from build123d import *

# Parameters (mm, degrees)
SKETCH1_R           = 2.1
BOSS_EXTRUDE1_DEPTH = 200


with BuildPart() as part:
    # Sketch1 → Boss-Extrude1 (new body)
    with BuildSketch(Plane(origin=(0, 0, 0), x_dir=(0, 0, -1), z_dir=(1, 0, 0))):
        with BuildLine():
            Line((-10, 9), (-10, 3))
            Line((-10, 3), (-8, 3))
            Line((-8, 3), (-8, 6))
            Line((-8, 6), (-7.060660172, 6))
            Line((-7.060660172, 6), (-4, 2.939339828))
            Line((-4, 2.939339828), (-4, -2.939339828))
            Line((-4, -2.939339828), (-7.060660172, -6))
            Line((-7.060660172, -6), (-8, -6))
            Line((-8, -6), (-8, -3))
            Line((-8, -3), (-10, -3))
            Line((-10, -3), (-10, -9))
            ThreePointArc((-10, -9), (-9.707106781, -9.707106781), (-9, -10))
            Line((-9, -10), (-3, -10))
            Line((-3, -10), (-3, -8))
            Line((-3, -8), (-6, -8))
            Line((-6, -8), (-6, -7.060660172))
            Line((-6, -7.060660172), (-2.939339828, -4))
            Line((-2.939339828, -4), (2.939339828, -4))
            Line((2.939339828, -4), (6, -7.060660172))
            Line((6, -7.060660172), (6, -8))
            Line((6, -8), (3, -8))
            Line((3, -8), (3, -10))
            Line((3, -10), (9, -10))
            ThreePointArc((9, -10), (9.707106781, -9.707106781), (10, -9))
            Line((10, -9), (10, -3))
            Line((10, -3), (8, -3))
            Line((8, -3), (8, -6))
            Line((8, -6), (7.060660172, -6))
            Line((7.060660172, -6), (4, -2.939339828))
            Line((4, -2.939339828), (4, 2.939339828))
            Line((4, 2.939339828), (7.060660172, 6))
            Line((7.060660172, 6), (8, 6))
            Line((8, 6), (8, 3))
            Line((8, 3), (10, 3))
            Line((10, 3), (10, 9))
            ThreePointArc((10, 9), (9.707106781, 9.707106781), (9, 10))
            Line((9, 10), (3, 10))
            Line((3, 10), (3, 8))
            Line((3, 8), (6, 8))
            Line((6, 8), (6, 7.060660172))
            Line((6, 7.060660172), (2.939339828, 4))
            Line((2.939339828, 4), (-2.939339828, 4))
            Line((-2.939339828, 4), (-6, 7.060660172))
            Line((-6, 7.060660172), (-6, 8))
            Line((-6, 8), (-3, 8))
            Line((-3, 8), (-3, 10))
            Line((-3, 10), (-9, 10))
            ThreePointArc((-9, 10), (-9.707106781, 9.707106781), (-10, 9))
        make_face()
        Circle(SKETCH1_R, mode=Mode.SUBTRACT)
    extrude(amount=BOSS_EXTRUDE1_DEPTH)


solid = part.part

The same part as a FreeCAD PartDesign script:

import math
import FreeCAD as App
import Part
import Sketcher
from FreeCAD import Vector
Q = App.Units.Quantity

doc = App.newDocument("Part")
body = doc.addObject("PartDesign::Body", "Body")

sketch1 = body.newObject("Sketcher::SketchObject", "Sketch")
sketch1.AttachmentSupport = (doc.getObject("YZ_Plane"), [""])
sketch1.MapMode = "FlatFace"
sketch1.addGeometry([
    Part.LineSegment(Vector(9, 10, 0), Vector(3, 10, 0)),
    Part.LineSegment(Vector(3, 10, 0), Vector(3, 8, 0)),
    Part.LineSegment(Vector(3, 8, 0), Vector(6, 8, 0)),
    Part.LineSegment(Vector(6, 8, 0), Vector(6, 7.1, 0)),
    Part.LineSegment(Vector(6, 7.1, 0), Vector(2.9, 4, 0)),
    Part.LineSegment(Vector(2.9, 4, 0), Vector(-2.9, 4, 0)),
    Part.LineSegment(Vector(-2.9, 4, 0), Vector(-6, 7.1, 0)),
    Part.LineSegment(Vector(-6, 7.1, 0), Vector(-6, 8, 0)),
    Part.LineSegment(Vector(-6, 8, 0), Vector(-3, 8, 0)),
    Part.LineSegment(Vector(-3, 8, 0), Vector(-3, 10, 0)),
    Part.LineSegment(Vector(-3, 10, 0), Vector(-9, 10, 0)),
    Part.ArcOfCircle(Part.Circle(Vector(-9, 9, 0), Vector(0, 0, 1), 1), math.radians(90), math.radians(180)),
    Part.LineSegment(Vector(-10, 9, 0), Vector(-10, 3, 0)),
    Part.LineSegment(Vector(-10, 3, 0), Vector(-8, 3, 0)),
    Part.LineSegment(Vector(-8, 3, 0), Vector(-8, 6, 0)),
    Part.LineSegment(Vector(-8, 6, 0), Vector(-7.1, 6, 0)),
    Part.LineSegment(Vector(-7.1, 6, 0), Vector(-4, 2.9, 0)),
    Part.LineSegment(Vector(-4, 2.9, 0), Vector(-4, -2.9, 0)),
    Part.LineSegment(Vector(-4, -2.9, 0), Vector(-7.1, -6, 0)),
    Part.LineSegment(Vector(-7.1, -6, 0), Vector(-8, -6, 0)),
    Part.LineSegment(Vector(-8, -6, 0), Vector(-8, -3, 0)),
    Part.LineSegment(Vector(-8, -3, 0), Vector(-10, -3, 0)),
    Part.LineSegment(Vector(-10, -3, 0), Vector(-10, -9, 0)),
    Part.ArcOfCircle(Part.Circle(Vector(-9, -9, 0), Vector(0, 0, 1), 1), math.radians(-180), math.radians(-90)),
    Part.LineSegment(Vector(-9, -10, 0), Vector(-3, -10, 0)),
    Part.LineSegment(Vector(-3, -10, 0), Vector(-3, -8, 0)),
    Part.LineSegment(Vector(-3, -8, 0), Vector(-6, -8, 0)),
    Part.LineSegment(Vector(-6, -8, 0), Vector(-6, -7.1, 0)),
    Part.LineSegment(Vector(-6, -7.1, 0), Vector(-2.9, -4, 0)),
    Part.LineSegment(Vector(-2.9, -4, 0), Vector(2.9, -4, 0)),
    Part.LineSegment(Vector(2.9, -4, 0), Vector(6, -7.1, 0)),
    Part.LineSegment(Vector(6, -7.1, 0), Vector(6, -8, 0)),
    Part.LineSegment(Vector(6, -8, 0), Vector(3, -8, 0)),
    Part.LineSegment(Vector(3, -8, 0), Vector(3, -10, 0)),
    Part.LineSegment(Vector(3, -10, 0), Vector(9, -10, 0)),
    Part.ArcOfCircle(Part.Circle(Vector(9, -9, 0), Vector(0, 0, 1), 1), math.radians(-90), math.radians(0)),
    Part.LineSegment(Vector(10, -9, 0), Vector(10, -3, 0)),
    Part.LineSegment(Vector(10, -3, 0), Vector(8, -3, 0)),
    Part.LineSegment(Vector(8, -3, 0), Vector(8, -6, 0)),
    Part.LineSegment(Vector(8, -6, 0), Vector(7.1, -6, 0)),
    Part.LineSegment(Vector(7.1, -6, 0), Vector(4, -2.9, 0)),
    Part.LineSegment(Vector(4, -2.9, 0), Vector(4, 2.9, 0)),
    Part.LineSegment(Vector(4, 2.9, 0), Vector(7.1, 6, 0)),
    Part.LineSegment(Vector(7.1, 6, 0), Vector(8, 6, 0)),
    Part.LineSegment(Vector(8, 6, 0), Vector(8, 3, 0)),
    Part.LineSegment(Vector(8, 3, 0), Vector(10, 3, 0)),
    Part.LineSegment(Vector(10, 3, 0), Vector(10, 9, 0)),
    Part.ArcOfCircle(Part.Circle(Vector(9, 9, 0), Vector(0, 0, 1), 1), math.radians(0), math.radians(90)),
    Part.Circle(Vector(0, 0, 0), Vector(0, 0, 1), 2.1),
], False)
sketch1.addConstraint([
    Sketcher.Constraint("Coincident", 0, 2, 1, 1),
    Sketcher.Constraint("Coincident", 1, 2, 2, 1),
    Sketcher.Constraint("Coincident", 2, 2, 3, 1),
    Sketcher.Constraint("Coincident", 3, 2, 4, 1),
    Sketcher.Constraint("Coincident", 4, 2, 5, 1),
    Sketcher.Constraint("Coincident", 5, 2, 6, 1),
    Sketcher.Constraint("Coincident", 6, 2, 7, 1),
    Sketcher.Constraint("Coincident", 7, 2, 8, 1),
    Sketcher.Constraint("Coincident", 8, 2, 9, 1),
    Sketcher.Constraint("Coincident", 9, 2, 10, 1),
    Sketcher.Constraint("Tangent", 10, 2, 11, 1),
    Sketcher.Constraint("Tangent", 11, 2, 12, 1),
    Sketcher.Constraint("Coincident", 12, 2, 13, 1),
    Sketcher.Constraint("Coincident", 13, 2, 14, 1),
    Sketcher.Constraint("Coincident", 14, 2, 15, 1),
    Sketcher.Constraint("Coincident", 15, 2, 16, 1),
    Sketcher.Constraint("Coincident", 16, 2, 17, 1),
    Sketcher.Constraint("Coincident", 17, 2, 18, 1),
    Sketcher.Constraint("Coincident", 18, 2, 19, 1),
    Sketcher.Constraint("Coincident", 19, 2, 20, 1),
    Sketcher.Constraint("Coincident", 20, 2, 21, 1),
    Sketcher.Constraint("Coincident", 21, 2, 22, 1),
    Sketcher.Constraint("Tangent", 22, 2, 23, 1),
    Sketcher.Constraint("Tangent", 23, 2, 24, 1),
    Sketcher.Constraint("Coincident", 24, 2, 25, 1),
    Sketcher.Constraint("Coincident", 25, 2, 26, 1),
    Sketcher.Constraint("Coincident", 26, 2, 27, 1),
    Sketcher.Constraint("Coincident", 27, 2, 28, 1),
    Sketcher.Constraint("Coincident", 28, 2, 29, 1),
    Sketcher.Constraint("Coincident", 29, 2, 30, 1),
    Sketcher.Constraint("Coincident", 30, 2, 31, 1),
    Sketcher.Constraint("Coincident", 31, 2, 32, 1),
    Sketcher.Constraint("Coincident", 32, 2, 33, 1),
    Sketcher.Constraint("Coincident", 33, 2, 34, 1),
    Sketcher.Constraint("Tangent", 34, 2, 35, 1),
    Sketcher.Constraint("Tangent", 35, 2, 36, 1),
    Sketcher.Constraint("Coincident", 36, 2, 37, 1),
    Sketcher.Constraint("Coincident", 37, 2, 38, 1),
    Sketcher.Constraint("Coincident", 38, 2, 39, 1),
    Sketcher.Constraint("Coincident", 39, 2, 40, 1),
    Sketcher.Constraint("Coincident", 40, 2, 41, 1),
    Sketcher.Constraint("Coincident", 41, 2, 42, 1),
    Sketcher.Constraint("Coincident", 42, 2, 43, 1),
    Sketcher.Constraint("Coincident", 43, 2, 44, 1),
    Sketcher.Constraint("Coincident", 44, 2, 45, 1),
    Sketcher.Constraint("Coincident", 45, 2, 46, 1),
    Sketcher.Constraint("Tangent", 46, 2, 47, 1),
    Sketcher.Constraint("Tangent", 47, 2, 0, 1),
    Sketcher.Constraint("Horizontal", 0),
    Sketcher.Constraint("Vertical", 1),
    Sketcher.Constraint("Horizontal", 2),
    Sketcher.Constraint("Vertical", 3),
    Sketcher.Constraint("Horizontal", 5),
    Sketcher.Constraint("Vertical", 7),
    Sketcher.Constraint("Horizontal", 8),
    Sketcher.Constraint("Vertical", 9),
    Sketcher.Constraint("Horizontal", 10),
    Sketcher.Constraint("Vertical", 12),
    Sketcher.Constraint("Horizontal", 13),
    Sketcher.Constraint("Vertical", 14),
    Sketcher.Constraint("Horizontal", 15),
    Sketcher.Constraint("Vertical", 17),
    Sketcher.Constraint("Horizontal", 19),
    Sketcher.Constraint("Vertical", 20),
    Sketcher.Constraint("Horizontal", 21),
    Sketcher.Constraint("Vertical", 22),
    Sketcher.Constraint("Horizontal", 24),
    Sketcher.Constraint("Vertical", 25),
    Sketcher.Constraint("Horizontal", 26),
    Sketcher.Constraint("Vertical", 27),
    Sketcher.Constraint("Horizontal", 29),
    Sketcher.Constraint("Vertical", 31),
    Sketcher.Constraint("Horizontal", 32),
    Sketcher.Constraint("Vertical", 33),
    Sketcher.Constraint("Horizontal", 34),
    Sketcher.Constraint("Vertical", 36),
    Sketcher.Constraint("Horizontal", 37),
    Sketcher.Constraint("Vertical", 38),
    Sketcher.Constraint("Horizontal", 39),
    Sketcher.Constraint("Vertical", 41),
    Sketcher.Constraint("Horizontal", 43),
    Sketcher.Constraint("Vertical", 44),
    Sketcher.Constraint("Horizontal", 45),
    Sketcher.Constraint("Vertical", 46),
    Sketcher.Constraint("Coincident", 48, 3, -1, 1),
    Sketcher.Constraint("Equal", 11, 23),
    Sketcher.Constraint("Equal", 23, 35),
    Sketcher.Constraint("Equal", 35, 47),
    Sketcher.Constraint("Symmetric", 11, 3, 35, 3, -1, 1),
    Sketcher.Constraint("Symmetric", 23, 3, 47, 3, -1, 1),
    Sketcher.Constraint("Symmetric", 1, 2, 25, 2, -1, 1),
    Sketcher.Constraint("Symmetric", 3, 2, 27, 2, -1, 1),
    Sketcher.Constraint("Symmetric", 4, 2, 28, 2, -1, 1),
    Sketcher.Constraint("Symmetric", 6, 2, 30, 2, -1, 1),
    Sketcher.Constraint("Symmetric", 8, 2, 32, 2, -1, 1),
    Sketcher.Constraint("Symmetric", 13, 2, 37, 2, -1, 1),
    Sketcher.Constraint("Symmetric", 15, 2, 39, 2, -1, 1),
    Sketcher.Constraint("Symmetric", 16, 2, 40, 2, -1, 1),
    Sketcher.Constraint("Symmetric", 18, 2, 42, 2, -1, 1),
    Sketcher.Constraint("Symmetric", 20, 2, 44, 2, -1, 1),
    Sketcher.Constraint("Symmetric", 23, 3, 35, 3, -2),
    Sketcher.Constraint("Symmetric", 3, 2, 6, 2, -2),
    Sketcher.Constraint("Symmetric", 1, 2, 8, 2, -2),
    Sketcher.Constraint("Symmetric", 20, 2, 37, 2, -2),
    Sketcher.Constraint("Symmetric", 18, 2, 39, 2, -2),
    Sketcher.Constraint("Perpendicular", 4, 6),
    Sketcher.Constraint("Parallel", 6, 16),
    Sketcher.Constraint("Perpendicular", 16, 18),
    Sketcher.Constraint("Perpendicular", 28, 30),
    Sketcher.Constraint("Perpendicular", 40, 42),
    Sketcher.Constraint("Horizontal", 17, 2, 40, 2),
    Sketcher.Constraint("Equal", 45, 1),
    Sketcher.Constraint("Equal", 43, 3),
    Sketcher.Constraint("Equal", 34, 12),
    Sketcher.Constraint("Equal", 32, 14),
    Sketcher.Constraint("Equal", 29, 17),
    Sketcher.Constraint("Equal", 6, 16),
    Sketcher.Constraint("Radius", 11, Q("1 mm")),
    Sketcher.Constraint("Diameter", 48, Q("4.2 mm")),
    Sketcher.Constraint("DistanceX", 0, 2, 0, 1, Q("6 mm")),
    Sketcher.Constraint("DistanceX", 2, 1, 2, 2, Q("3 mm")),
    Sketcher.Constraint("DistanceX", 13, 1, 13, 2, Q("2 mm")),
    Sketcher.Constraint("DistanceX", 11, 3, -1, 1, Q("9 mm")),
    Sketcher.Constraint("DistanceY", -1, 1, 4, 2, Q("4 mm")),
    Sketcher.Constraint("DistanceX", 5, 2, 5, 1, Q("5.87868 mm")),
])
pad1 = body.newObject("PartDesign::Pad", "Pad")
pad1.Profile = sketch1
pad1.Length = 200

doc.recompute()
